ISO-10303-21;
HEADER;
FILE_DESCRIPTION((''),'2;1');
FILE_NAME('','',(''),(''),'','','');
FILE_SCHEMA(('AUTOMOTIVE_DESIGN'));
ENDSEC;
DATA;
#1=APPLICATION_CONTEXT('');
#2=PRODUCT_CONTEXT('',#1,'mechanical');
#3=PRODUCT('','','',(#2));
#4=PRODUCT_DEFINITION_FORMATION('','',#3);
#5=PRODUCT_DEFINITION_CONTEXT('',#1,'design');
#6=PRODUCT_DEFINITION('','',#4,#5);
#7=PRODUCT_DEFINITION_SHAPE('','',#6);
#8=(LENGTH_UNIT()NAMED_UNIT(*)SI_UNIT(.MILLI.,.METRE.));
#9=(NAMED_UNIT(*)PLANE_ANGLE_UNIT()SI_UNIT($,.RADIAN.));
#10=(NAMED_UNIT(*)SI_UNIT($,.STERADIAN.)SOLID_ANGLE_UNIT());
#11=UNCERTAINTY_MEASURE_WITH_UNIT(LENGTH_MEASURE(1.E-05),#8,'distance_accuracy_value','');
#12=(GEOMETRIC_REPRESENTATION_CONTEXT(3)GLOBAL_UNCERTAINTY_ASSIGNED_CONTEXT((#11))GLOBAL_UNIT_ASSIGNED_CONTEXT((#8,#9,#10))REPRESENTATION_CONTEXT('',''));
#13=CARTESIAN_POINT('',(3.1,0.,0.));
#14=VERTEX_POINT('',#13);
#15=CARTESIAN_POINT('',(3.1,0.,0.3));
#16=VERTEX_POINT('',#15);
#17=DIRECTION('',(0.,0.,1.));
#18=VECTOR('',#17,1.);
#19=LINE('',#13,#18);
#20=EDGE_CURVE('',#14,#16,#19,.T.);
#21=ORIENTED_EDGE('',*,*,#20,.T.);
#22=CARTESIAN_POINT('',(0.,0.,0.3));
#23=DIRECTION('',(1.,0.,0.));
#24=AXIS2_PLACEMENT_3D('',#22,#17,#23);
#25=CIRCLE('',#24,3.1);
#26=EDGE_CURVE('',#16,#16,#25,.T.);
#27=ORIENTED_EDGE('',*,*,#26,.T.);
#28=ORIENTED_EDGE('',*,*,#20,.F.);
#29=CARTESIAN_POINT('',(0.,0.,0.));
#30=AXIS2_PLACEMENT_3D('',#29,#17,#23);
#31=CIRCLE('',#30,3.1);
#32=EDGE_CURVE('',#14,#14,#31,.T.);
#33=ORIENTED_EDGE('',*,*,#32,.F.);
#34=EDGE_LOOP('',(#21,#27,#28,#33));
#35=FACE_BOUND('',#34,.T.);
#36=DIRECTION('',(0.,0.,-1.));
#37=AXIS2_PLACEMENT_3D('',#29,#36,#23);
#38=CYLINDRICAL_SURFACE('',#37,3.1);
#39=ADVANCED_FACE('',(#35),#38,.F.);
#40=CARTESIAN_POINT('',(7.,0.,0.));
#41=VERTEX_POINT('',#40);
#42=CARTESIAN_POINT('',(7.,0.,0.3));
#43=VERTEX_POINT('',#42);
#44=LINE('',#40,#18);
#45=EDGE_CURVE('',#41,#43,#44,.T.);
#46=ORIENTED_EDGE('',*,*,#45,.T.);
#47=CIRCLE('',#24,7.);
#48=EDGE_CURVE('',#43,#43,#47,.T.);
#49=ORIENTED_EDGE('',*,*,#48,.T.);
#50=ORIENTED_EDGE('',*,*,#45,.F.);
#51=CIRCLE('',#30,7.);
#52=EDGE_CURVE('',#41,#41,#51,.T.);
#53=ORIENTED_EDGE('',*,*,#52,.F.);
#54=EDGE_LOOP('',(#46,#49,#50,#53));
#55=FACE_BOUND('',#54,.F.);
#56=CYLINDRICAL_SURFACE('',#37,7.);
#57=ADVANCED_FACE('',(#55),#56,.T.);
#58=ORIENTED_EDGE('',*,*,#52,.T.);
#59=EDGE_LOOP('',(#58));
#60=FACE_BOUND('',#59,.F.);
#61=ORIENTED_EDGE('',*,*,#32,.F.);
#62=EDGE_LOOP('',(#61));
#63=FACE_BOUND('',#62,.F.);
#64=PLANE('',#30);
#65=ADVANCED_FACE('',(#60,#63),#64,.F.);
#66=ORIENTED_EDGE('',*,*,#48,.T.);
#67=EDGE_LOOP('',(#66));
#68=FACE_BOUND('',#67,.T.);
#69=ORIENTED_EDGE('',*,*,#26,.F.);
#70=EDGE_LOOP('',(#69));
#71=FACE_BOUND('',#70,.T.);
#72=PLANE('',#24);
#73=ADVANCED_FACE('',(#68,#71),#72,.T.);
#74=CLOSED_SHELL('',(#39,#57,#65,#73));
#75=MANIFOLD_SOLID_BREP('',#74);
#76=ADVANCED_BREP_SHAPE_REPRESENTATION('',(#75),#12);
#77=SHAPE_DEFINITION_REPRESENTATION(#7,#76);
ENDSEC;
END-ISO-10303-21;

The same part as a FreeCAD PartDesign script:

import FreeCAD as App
import Part
import Sketcher

V = App.Vector

doc = App.newDocument("Part")
params = doc.addObject("Spreadsheet::Sheet", "Params")
for row, (alias, value) in enumerate([
    ("sketch1_diameter", "14 mm"),
    ("sketch1_diameter2", "6.2 mm"),
    ("pad1_length", "0.3 mm"),
], start=1):
    params.set(f"A{row}", alias)
    params.set(f"B{row}", "=" + value)
    params.setAlias(f"B{row}", alias)

body = doc.addObject("PartDesign::Body", "Body")

sketch1 = body.newObject("Sketcher::SketchObject", "Sketch")
sketch1.AttachmentSupport = (doc.getObject("XY_Plane"), [""])
sketch1.MapMode = "FlatFace"
sketch1.addGeometry([
    Part.Circle(V(0, 0, 0), V(0, 0, 1), 7),
    Part.Circle(V(0, 0, 0), V(0, 0, 1), 3.1),
], False)
sketch1.addConstraint([
    Sketcher.Constraint("Coincident", 0, 3, -1, 1),
    Sketcher.Constraint("Coincident", 1, 3, -1, 1),
    Sketcher.Constraint("Diameter", 0, 14.0),
    Sketcher.Constraint("Diameter", 1, 6.2),
])
sketch1.setExpression("Constraints[2]", "Params.sketch1_diameter")
sketch1.setExpression("Constraints[3]", "Params.sketch1_diameter2")
pad1 = body.newObject("PartDesign::Pad", "Pad")
pad1.Profile = sketch1
pad1.setExpression("Length", "Params.pad1_length")

doc.recompute()
